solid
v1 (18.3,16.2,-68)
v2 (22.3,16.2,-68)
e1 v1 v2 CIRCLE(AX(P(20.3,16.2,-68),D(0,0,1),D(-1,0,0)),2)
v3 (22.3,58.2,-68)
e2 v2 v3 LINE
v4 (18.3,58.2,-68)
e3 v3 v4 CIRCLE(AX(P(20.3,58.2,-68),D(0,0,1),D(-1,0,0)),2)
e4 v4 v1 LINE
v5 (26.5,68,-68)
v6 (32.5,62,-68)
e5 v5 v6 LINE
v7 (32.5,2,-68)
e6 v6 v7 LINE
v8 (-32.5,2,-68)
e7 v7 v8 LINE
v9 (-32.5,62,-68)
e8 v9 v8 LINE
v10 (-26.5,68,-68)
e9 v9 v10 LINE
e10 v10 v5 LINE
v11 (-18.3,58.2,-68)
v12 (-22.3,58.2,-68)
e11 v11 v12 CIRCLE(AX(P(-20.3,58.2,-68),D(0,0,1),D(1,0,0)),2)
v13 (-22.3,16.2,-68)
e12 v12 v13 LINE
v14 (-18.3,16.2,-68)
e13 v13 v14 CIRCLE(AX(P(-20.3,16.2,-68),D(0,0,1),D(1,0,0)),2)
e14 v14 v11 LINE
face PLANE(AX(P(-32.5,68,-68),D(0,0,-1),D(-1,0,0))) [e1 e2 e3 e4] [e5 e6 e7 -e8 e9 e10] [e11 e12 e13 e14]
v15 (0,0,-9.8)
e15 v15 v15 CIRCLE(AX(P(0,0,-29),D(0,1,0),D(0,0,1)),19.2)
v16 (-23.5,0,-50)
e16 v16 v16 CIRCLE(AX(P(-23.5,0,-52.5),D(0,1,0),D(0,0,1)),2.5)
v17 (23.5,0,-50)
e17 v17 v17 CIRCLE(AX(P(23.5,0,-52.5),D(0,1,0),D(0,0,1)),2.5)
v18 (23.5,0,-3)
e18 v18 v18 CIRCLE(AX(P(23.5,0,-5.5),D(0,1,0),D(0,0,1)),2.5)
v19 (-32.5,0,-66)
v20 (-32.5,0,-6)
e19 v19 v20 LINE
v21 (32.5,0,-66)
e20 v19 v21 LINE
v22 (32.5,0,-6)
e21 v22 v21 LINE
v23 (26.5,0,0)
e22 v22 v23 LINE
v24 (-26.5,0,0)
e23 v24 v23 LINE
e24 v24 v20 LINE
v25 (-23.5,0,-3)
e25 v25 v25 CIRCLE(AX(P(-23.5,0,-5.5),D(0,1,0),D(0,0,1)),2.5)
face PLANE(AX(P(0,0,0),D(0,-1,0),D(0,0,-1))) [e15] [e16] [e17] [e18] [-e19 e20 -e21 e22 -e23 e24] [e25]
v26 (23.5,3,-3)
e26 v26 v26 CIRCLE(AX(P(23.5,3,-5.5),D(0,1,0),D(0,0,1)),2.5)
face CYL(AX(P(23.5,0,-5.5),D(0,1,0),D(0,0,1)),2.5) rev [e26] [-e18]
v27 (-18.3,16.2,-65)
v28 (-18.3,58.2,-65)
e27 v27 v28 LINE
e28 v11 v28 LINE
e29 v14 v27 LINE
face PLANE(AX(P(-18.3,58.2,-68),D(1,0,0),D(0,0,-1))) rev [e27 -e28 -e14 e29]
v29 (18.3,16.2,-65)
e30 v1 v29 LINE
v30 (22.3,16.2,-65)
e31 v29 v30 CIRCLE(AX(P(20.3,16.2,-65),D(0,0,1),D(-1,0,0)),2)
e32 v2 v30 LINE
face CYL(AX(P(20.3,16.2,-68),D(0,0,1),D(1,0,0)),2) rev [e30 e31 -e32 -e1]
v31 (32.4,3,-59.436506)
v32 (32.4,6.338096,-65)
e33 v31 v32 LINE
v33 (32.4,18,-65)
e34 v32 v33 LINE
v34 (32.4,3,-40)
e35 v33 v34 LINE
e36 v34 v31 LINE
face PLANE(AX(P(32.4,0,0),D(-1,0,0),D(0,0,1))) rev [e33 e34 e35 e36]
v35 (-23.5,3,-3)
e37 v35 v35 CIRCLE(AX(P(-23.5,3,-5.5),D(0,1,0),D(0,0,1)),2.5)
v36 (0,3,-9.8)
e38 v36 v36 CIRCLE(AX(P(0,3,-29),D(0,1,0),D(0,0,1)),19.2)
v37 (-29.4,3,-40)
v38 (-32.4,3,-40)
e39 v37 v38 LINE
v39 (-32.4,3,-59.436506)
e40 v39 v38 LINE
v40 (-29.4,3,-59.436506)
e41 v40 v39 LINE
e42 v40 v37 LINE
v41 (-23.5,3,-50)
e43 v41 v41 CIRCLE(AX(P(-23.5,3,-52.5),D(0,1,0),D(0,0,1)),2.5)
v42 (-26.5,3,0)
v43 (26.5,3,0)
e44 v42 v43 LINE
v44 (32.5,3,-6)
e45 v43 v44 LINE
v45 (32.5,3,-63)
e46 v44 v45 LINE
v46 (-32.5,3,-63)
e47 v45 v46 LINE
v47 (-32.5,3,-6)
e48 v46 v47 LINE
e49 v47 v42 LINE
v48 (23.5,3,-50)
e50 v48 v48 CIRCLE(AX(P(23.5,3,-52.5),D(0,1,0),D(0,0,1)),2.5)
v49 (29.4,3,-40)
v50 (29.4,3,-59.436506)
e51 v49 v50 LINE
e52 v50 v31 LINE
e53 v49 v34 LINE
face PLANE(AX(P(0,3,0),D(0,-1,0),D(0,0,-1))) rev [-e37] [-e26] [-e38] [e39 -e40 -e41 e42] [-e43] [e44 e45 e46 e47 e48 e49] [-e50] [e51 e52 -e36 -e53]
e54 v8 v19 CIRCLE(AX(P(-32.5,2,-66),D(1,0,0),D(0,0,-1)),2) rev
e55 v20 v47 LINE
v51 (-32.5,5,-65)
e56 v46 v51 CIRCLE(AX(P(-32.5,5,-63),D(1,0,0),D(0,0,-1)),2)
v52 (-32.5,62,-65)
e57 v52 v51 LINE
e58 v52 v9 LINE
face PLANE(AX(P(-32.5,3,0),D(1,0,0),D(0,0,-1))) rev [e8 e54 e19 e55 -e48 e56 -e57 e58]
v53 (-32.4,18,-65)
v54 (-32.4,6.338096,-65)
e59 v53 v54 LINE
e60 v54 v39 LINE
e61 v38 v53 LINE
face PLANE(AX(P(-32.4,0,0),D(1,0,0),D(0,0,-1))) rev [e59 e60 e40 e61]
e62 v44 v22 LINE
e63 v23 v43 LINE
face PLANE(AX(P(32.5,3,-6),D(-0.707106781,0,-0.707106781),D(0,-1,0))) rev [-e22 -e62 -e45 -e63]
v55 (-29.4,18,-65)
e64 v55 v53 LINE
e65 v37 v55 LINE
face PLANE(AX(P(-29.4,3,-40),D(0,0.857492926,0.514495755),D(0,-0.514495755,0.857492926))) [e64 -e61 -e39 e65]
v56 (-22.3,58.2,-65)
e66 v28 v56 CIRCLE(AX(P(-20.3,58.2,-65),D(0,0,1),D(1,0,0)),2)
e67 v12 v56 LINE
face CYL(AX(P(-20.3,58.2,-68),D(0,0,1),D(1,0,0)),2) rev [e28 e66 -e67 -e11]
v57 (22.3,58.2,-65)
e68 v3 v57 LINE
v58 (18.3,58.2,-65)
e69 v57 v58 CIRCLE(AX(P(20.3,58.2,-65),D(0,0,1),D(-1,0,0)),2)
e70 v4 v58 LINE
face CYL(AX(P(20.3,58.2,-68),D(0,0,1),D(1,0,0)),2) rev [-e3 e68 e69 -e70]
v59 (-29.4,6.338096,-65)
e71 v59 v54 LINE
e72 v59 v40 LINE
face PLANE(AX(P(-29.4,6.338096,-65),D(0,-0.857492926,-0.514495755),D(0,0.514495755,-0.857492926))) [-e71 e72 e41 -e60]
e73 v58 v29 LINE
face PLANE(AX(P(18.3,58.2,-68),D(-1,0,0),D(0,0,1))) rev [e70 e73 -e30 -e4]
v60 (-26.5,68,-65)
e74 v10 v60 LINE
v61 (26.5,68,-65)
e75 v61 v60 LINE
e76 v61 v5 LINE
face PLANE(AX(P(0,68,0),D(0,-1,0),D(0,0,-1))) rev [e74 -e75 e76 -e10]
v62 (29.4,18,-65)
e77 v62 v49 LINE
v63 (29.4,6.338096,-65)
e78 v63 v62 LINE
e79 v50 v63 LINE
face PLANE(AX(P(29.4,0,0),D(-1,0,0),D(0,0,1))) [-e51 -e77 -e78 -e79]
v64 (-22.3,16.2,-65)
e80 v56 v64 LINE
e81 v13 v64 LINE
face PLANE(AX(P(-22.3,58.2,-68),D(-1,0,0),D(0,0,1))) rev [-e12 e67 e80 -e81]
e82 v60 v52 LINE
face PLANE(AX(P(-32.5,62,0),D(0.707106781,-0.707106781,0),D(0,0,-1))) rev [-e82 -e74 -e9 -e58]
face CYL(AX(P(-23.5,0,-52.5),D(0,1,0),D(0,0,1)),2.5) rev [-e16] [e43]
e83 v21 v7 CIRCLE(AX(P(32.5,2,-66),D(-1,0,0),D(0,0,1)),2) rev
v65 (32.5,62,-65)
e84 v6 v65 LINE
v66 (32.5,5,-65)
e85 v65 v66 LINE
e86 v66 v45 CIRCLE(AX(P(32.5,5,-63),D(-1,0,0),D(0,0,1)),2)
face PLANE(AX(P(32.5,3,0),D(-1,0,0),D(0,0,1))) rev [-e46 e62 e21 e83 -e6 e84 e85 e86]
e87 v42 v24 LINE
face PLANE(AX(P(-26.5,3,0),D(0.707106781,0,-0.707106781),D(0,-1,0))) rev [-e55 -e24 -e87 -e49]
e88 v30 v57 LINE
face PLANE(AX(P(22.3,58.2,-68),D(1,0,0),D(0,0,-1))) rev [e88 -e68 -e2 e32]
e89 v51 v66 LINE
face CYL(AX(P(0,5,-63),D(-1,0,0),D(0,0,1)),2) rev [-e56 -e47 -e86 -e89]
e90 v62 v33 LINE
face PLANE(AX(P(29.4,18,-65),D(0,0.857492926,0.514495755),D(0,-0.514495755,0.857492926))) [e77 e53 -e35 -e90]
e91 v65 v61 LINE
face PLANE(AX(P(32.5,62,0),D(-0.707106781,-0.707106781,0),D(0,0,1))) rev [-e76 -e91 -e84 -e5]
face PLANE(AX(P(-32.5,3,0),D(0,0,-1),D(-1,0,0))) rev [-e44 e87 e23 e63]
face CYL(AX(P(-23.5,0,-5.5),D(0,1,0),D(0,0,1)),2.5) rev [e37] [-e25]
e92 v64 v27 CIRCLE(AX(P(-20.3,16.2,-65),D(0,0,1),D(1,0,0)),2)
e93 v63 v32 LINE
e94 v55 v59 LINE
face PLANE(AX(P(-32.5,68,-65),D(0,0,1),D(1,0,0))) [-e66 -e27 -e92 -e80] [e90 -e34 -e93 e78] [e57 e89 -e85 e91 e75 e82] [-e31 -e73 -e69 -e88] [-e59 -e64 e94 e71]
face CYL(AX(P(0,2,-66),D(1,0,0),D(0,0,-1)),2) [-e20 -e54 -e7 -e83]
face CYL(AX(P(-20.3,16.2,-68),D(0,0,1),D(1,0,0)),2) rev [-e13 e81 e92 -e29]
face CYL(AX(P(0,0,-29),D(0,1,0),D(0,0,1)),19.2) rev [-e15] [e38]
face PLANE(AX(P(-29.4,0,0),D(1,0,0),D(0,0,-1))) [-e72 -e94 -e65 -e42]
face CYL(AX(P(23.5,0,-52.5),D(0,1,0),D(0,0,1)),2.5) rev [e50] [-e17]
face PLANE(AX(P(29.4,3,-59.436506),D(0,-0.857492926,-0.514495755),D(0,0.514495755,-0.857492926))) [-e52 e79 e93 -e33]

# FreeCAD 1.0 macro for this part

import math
import FreeCAD as App
import Part
import Sketcher

V = App.Vector


def edges_at(feature, points):
    """Names of the edges that pass closest to the given points."""
    edges = feature.Shape.Edges
    near = lambda p: min(range(len(edges)), key=lambda i: edges[i].distToShape(Part.Vertex(*p))[0])
    return sorted({f"Edge{near(p) + 1}" for p in points})


def add_polygon(sketch, points):
    """Adds a closed chain of lines whose ends are joined by coincident constraints."""
    first, n = sketch.GeometryCount, len(points)
    for a, b in zip(points, points[1:] + points[:1]):
        sketch.addGeometry(Part.LineSegment(App.Vector(*a, 0), App.Vector(*b, 0)), False)
    for i in range(n):
        sketch.addConstraint(Sketcher.Constraint("Coincident", first + i, 2, first + (i + 1) % n, 1))

doc = App.newDocument("Part")
params = doc.addObject("Spreadsheet::Sheet", "Params")
for row, (alias, value) in enumerate([
    ("sketch1_width", "65 mm"),
    ("pad1_length", "3 mm"),
    ("sketch2_width", "65 mm"),
    ("sketch2_height", "3 mm"),
    ("pad2_length", "68 mm"),
    ("sketch3_diameter", "38.4 mm"),
    ("sketch4_diameter", "5 mm"),
    ("sketch5_radius", "2 mm"),
    ("sketch5_height", "42 mm"),
    ("pad3_length", "3 mm"),
    ("pad4_length", "3 mm"),
    ("fillet_radius", "2 mm"),
    ("chamfer_size", "6 mm"),
], start=1):
    params.set(f"A{row}", alias)
    params.set(f"B{row}", "=" + value)
    params.setAlias(f"B{row}", alias)

body = doc.addObject("PartDesign::Body", "Body")

# Sketch on XZ plane
sketch1 = doc.addObject("Sketcher::SketchObject", "Sketch")
body.addObject(sketch1)
sketch1.AttachmentSupport = (doc.XZ_Plane, [""])
sketch1.MapMode = "FlatFace"
add_polygon(sketch1, [(-32, -65), (-32, 0), (32, 0), (32, -65)])  # lines 0-3
sketch1.addConstraint([
    Sketcher.Constraint("Vertical", 0),
    Sketcher.Constraint("Horizontal", 1),
    Sketcher.Constraint("Vertical", 2),
    Sketcher.Constraint("Horizontal", 3),
    Sketcher.Constraint("Symmetric", 0, 2, 1, 2, -1, 1),
    Sketcher.Constraint("Equal", 3, 0),
    Sketcher.Constraint("DistanceX", 1, 1, 1, 2, 65.0),
])
sketch1.setExpression("Constraints[10]", "Params.sketch1_width")
pad1 = doc.addObject("PartDesign::Pad", "Pad")
body.addObject(pad1)
pad1.Profile = sketch1
pad1.setExpression("Length", "Params.pad1_length")
pad1.Reversed = True

# Sketch on XZ plane
sketch2 = doc.addObject("Sketcher::SketchObject", "Sketch001")
body.addObject(sketch2)
sketch2.AttachmentSupport = (doc.XZ_Plane, [""])
sketch2.MapMode = "FlatFace"
add_polygon(sketch2, [(-32.5, -65), (-32.5, -68), (32.5, -68), (32.5, -65)])  # lines 0-3
sketch2.addConstraint([
    Sketcher.Constraint("Vertical", 0),
    Sketcher.Constraint("Horizontal", 1),
    Sketcher.Constraint("Vertical", 2),
    Sketcher.Constraint("Horizontal", 3),
    Sketcher.Constraint("DistanceX", 1, 1, 1, 2, 65.0),
    Sketcher.Constraint("DistanceY", 0, 2, 0, 1, 3.0),
    Sketcher.Constraint("DistanceY", 0, 2, -1, 1, 68.0),
    Sketcher.Constraint("DistanceX", 0, 2, -1, 1, 32.5),
])
sketch2.setExpression("Constraints[8]", "Params.sketch2_width")
sketch2.setExpression("Constraints[9]", "Params.sketch2_height")
pad2 = doc.addObject("PartDesign::Pad", "Pad001")
body.addObject(pad2)
pad2.Profile = sketch2
pad2.setExpression("Length", "Params.pad2_length")
pad2.Reversed = True

# Sketch on XZ plane
sketch3 = doc.addObject("Sketcher::SketchObject", "Sketch002")
body.addObject(sketch3)
sketch3.AttachmentSupport = (doc.XZ_Plane, [""])
sketch3.MapMode = "FlatFace"
sketch3.AttachmentOffset = App.Placement(V(0, 0, -3), App.Rotation())
sketch3.addGeometry(Part.Circle(V(0, -29, 0), V(0, 0, 1), 19), False)
sketch3.addConstraint([
    Sketcher.Constraint("PointOnObject", 0, 3, -2),
    Sketcher.Constraint("Diameter", 0, 38.4),
    Sketcher.Constraint("DistanceY", 0, 3, -1, 1, 29.0),
])
sketch3.setExpression("Constraints[1]", "Params.sketch3_diameter")
pocket1 = doc.addObject("PartDesign::Pocket", "Pocket")
body.addObject(pocket1)
pocket1.Profile = sketch3
pocket1.Type = "ThroughAll"
pocket1.Reversed = True

# Sketch on XZ plane
sketch4 = doc.addObject("Sketcher::SketchObject", "Sketch003")
body.addObject(sketch4)
sketch4.AttachmentSupport = (doc.XZ_Plane, [""])
sketch4.MapMode = "FlatFace"
sketch4.AttachmentOffset = App.Placement(V(0, 0, -3), App.Rotation())
sketch4.addGeometry([
    Part.Circle(V(-23.5, -52.5, 0), V(0, 0, 1), 2.5),
    Part.Circle(V(23.5, -52.5, 0), V(0, 0, 1), 2.5),
    Part.Circle(V(23.5, -5.5, 0), V(0, 0, 1), 2.5),
    Part.Circle(V(-23.5, -5.5, 0), V(0, 0, 1), 2.5),
], False)
sketch4.addConstraint([
    Sketcher.Constraint("Equal", 0, 1),
    Sketcher.Constraint("Equal", 1, 2),
    Sketcher.Constraint("Equal", 2, 3),
    Sketcher.Constraint("Symmetric", 0, 3, 1, 3, -2),
    Sketcher.Constraint("Symmetric", 2, 3, 3, 3, -2),
    Sketcher.Constraint("Vertical", 1, 3, 2, 3),
    Sketcher.Constraint("Diameter", 0, 5.0),
    Sketcher.Constraint("DistanceX", 0, 3, 1, 3, 47.0),
    Sketcher.Constraint("DistanceY", 1, 3, 2, 3, 47.0),
    Sketcher.Constraint("DistanceY", 0, 3, -1, 1, 52.5),
])
sketch4.setExpression("Constraints[6]", "Params.sketch4_diameter")
pocket2 = doc.addObject("PartDesign::Pocket", "Pocket001")
body.addObject(pocket2)
pocket2.Profile = sketch4
pocket2.Type = "ThroughAll"
pocket2.Reversed = True

# Sketch on XY plane
sketch5 = doc.addObject("Sketcher::SketchObject", "Sketch004")
body.addObject(sketch5)
sketch5.AttachmentSupport = (doc.XY_Plane, [""])
sketch5.MapMode = "FlatFace"
sketch5.AttachmentOffset = App.Placement(V(0, 0, -65), App.Rotation())
sketch5.addGeometry([
    Part.LineSegment(V(-18.3, 16.2, 0), V(-18.3, 58.2, 0)),  # 0
    Part.ArcOfCircle(Part.Circle(V(-20.3, 58.2, 0), V(0, 0, 1), 2), math.radians(0), math.radians(180)),  # 1
    Part.LineSegment(V(-22.3, 58.2, 0), V(-22.3, 16.2, 0)),  # 2
    Part.ArcOfCircle(Part.Circle(V(-20.3, 16.2, 0), V(0, 0, 1), 2), math.radians(180), math.radians(360)),  # 3
    Part.LineSegment(V(18.3, 58.2, 0), V(18.3, 16.2, 0)),  # 4
    Part.ArcOfCircle(Part.Circle(V(20.3, 16.2, 0), V(0, 0, 1), 2), math.radians(180), math.radians(360)),  # 5
    Part.LineSegment(V(22.3, 16.2, 0), V(22.3, 58.2, 0)),  # 6
    Part.ArcOfCircle(Part.Circle(V(20.3, 58.2, 0), V(0, 0, 1), 2), math.radians(0), math.radians(180)),  # 7
], False)
sketch5.addConstraint([
    Sketcher.Constraint("Tangent", 0, 2, 1, 1),
    Sketcher.Constraint("Tangent", 1, 2, 2, 1),
    Sketcher.Constraint("Tangent", 2, 2, 3, 1),
    Sketcher.Constraint("Tangent", 3, 2, 0, 1),
    Sketcher.Constraint("Tangent", 4, 2, 5, 1),
    Sketcher.Constraint("Tangent", 5, 2, 6, 1),
    Sketcher.Constraint("Tangent", 6, 2, 7, 1),
    Sketcher.Constraint("Tangent", 7, 2, 4, 1),
    Sketcher.Constraint("Vertical", 0),
    Sketcher.Constraint("Vertical", 2),
    Sketcher.Constraint("Vertical", 4),
    Sketcher.Constraint("Vertical", 6),
    Sketcher.Constraint("Equal", 3, 5),
    Sketcher.Constraint("Symmetric", 3, 3, 5, 3, -2),
    Sketcher.Constraint("Horizontal", 1, 3, 7, 3),
    Sketcher.Constraint("Radius", 1, 2.0),
    Sketcher.Constraint("DistanceY", 0, 1, 0, 2, 42.0),
    Sketcher.Constraint("DistanceX", 1, 3, -1, 1, 20.3),
    Sketcher.Constraint("DistanceY", -1, 1, 1, 3, 58.2),
])
sketch5.setExpression("Constraints[15]", "Params.sketch5_radius")
sketch5.setExpression("Constraints[16]", "Params.sketch5_height")
pocket3 = doc.addObject("PartDesign::Pocket", "Pocket002")
body.addObject(pocket3)
pocket3.Profile = sketch5
pocket3.Type = "ThroughAll"

# Sketch on YZ plane
sketch6 = doc.addObject("Sketcher::SketchObject", "Sketch005")
body.addObject(sketch6)
sketch6.AttachmentSupport = (doc.YZ_Plane, [""])
sketch6.MapMode = "FlatFace"
sketch6.AttachmentOffset = App.Placement(V(0, 0, -32.4), App.Rotation())
add_polygon(sketch6, [(3, -40), (18, -65), (6, -65), (3, -59)])  # lines 0-3
sketch6.addConstraint([
    Sketcher.Constraint("Horizontal", 1),
    Sketcher.Constraint("Vertical", 3),
    Sketcher.Constraint("Parallel", 0, 2),
    Sketcher.Constraint("DistanceX", -1, 1, 0, 2, 18.0),
    Sketcher.Constraint("DistanceY", 0, 2, -1, 1, 65.0),
    Sketcher.Constraint("DistanceX", -1, 1, 2, 2, 3.0),
    Sketcher.Constraint("DistanceY", 3, 2, -1, 1, 40.0),
    Sketcher.Constraint("DistanceX", 1, 2, 1, 1, 11.661904),
])
pad3 = doc.addObject("PartDesign::Pad", "Pad002")
body.addObject(pad3)
pad3.Profile = sketch6
pad3.setExpression("Length", "Params.pad3_length")

# Sketch on YZ plane
sketch7 = doc.addObject("Sketcher::SketchObject", "Sketch006")
body.addObject(sketch7)
sketch7.AttachmentSupport = (doc.YZ_Plane, [""])
sketch7.MapMode = "FlatFace"
sketch7.AttachmentOffset = App.Placement(V(0, 0, 32.4), App.Rotation())
add_polygon(sketch7, [(3, -40), (3, -59), (6, -65), (18, -65)])  # lines 0-3
sketch7.addConstraint([
    Sketcher.Constraint("Vertical", 0),
    Sketcher.Constraint("Horizontal", 2),
    Sketcher.Constraint("Parallel", 1, 3),
    Sketcher.Constraint("DistanceX", -1, 1, 0, 2, 3.0),
    Sketcher.Constraint("DistanceY", 1, 2, -1, 1, 65.0),
    Sketcher.Constraint("DistanceX", -1, 1, 2, 2, 18.0),
    Sketcher.Constraint("DistanceY", 3, 2, -1, 1, 40.0),
    Sketcher.Constraint("DistanceX", 2, 1, 2, 2, 11.661904),
])
pad4 = doc.addObject("PartDesign::Pad", "Pad003")
body.addObject(pad4)
pad4.Profile = sketch7
pad4.setExpression("Length", "Params.pad4_length")
pad4.Reversed = True
doc.recompute()

fillet = doc.addObject("PartDesign::Fillet", "Fillet")
body.addObject(fillet)
fillet.Base = (pad4, edges_at(pad4, [(0, 3, -65), (0, 0, -68)]))
fillet.setExpression("Radius", "Params.fillet_radius")
doc.recompute()

chamfer = doc.addObject("PartDesign::Chamfer", "Chamfer")
body.addObject(chamfer)
chamfer.Base = (fillet, edges_at(fillet, [
    (-32.5, 68, -66.5),
    (32.5, 68, -66.5),
    (32.5, 1.5, 0),
    (-32.5, 1.5, 0),
]))
chamfer.setExpression("Size", "Params.chamfer_size")

doc.recompute()
